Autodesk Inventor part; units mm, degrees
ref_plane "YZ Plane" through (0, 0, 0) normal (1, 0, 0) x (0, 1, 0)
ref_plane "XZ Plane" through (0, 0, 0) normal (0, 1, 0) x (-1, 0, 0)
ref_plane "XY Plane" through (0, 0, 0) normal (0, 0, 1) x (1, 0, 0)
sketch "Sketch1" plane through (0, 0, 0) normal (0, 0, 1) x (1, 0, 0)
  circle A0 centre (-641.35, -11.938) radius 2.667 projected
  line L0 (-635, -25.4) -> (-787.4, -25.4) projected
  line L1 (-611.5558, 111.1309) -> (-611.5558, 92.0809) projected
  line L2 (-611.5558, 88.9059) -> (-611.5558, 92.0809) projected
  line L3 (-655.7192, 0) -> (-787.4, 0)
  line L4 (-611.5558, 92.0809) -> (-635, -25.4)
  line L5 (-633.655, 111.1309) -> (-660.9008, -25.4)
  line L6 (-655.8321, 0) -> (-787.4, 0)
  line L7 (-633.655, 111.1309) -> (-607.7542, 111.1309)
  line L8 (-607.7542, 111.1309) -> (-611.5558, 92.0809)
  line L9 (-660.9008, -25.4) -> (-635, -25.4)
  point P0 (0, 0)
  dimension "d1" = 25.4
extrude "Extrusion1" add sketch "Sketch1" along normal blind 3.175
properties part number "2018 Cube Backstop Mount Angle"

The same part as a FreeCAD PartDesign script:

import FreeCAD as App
import Part
import Sketcher
Q = App.Units.Quantity

doc = App.newDocument("Part")
body = doc.addObject("PartDesign::Body", "Body")

# Sketch on XY plane
sketch1 = body.newObject("Sketcher::SketchObject", "Sketch")
sketch1.AttachmentSupport = (doc.getObject("XY_Plane"), [""])
sketch1.MapMode = "FlatFace"
sketch1.addGeometry(Part.LineSegment(App.Vector(-660.9, -25.4, 0), App.Vector(-635, -25.4, 0)), False)
sketch1.addGeometry(Part.LineSegment(App.Vector(-635, -25.4, 0), App.Vector(-611.6, 92.1, 0)), False)
sketch1.addGeometry(Part.LineSegment(App.Vector(-611.6, 92.1, 0), App.Vector(-607.8, 111.1, 0)), False)
sketch1.addGeometry(Part.LineSegment(App.Vector(-607.8, 111.1, 0), App.Vector(-633.7, 111.1, 0)), False)
sketch1.addGeometry(Part.LineSegment(App.Vector(-633.7, 111.1, 0), App.Vector(-660.9, -25.4, 0)), False)
sketch1.addGeometry(Part.Circle(App.Vector(-641.4, -11.9, 0), App.Vector(0, 0, 1), 2.7), False)
sketch1.addConstraint(Sketcher.Constraint("Coincident", 0, 2, 1, 1))
sketch1.addConstraint(Sketcher.Constraint("Coincident", 1, 2, 2, 1))
sketch1.addConstraint(Sketcher.Constraint("Coincident", 2, 2, 3, 1))
sketch1.addConstraint(Sketcher.Constraint("Coincident", 3, 2, 4, 1))
sketch1.addConstraint(Sketcher.Constraint("Coincident", 4, 2, 0, 1))
sketch1.addConstraint(Sketcher.Constraint("Horizontal", 0))
sketch1.addConstraint(Sketcher.Constraint("Horizontal", 3))
sketch1.addConstraint(Sketcher.Constraint("Parallel", 1, 2))
sketch1.addConstraint(Sketcher.Constraint("Parallel", 2, 4))
sketch1.addConstraint(Sketcher.Constraint("DistanceY", 0, 2, -1, 1, Q("1 in")))
sketch1.addConstraint(Sketcher.Constraint("Diameter", 5, Q("0.21 in")))
sketch1.addConstraint(Sketcher.Constraint("DistanceX", 0, 2, -1, 1, Q("25 in")))
sketch1.addConstraint(Sketcher.Constraint("DistanceX", 5, 3, -1, 1, Q("25.25 in")))
sketch1.addConstraint(Sketcher.Constraint("DistanceY", 5, 3, -1, 1, Q("0.47 in")))
sketch1.addConstraint(Sketcher.Constraint("DistanceY", 1, 2, 2, 2, Q("0.75 in")))
sketch1.addConstraint(Sketcher.Constraint("DistanceX", 1, 2, -1, 1, Q("24.077 in")))
sketch1.addConstraint(Sketcher.Constraint("DistanceX", 0, 1, 0, 2, 25.9008))
sketch1.addConstraint(Sketcher.Constraint("Distance", 1, 119.7973))
pad1 = body.newObject("PartDesign::Pad", "Pad")
pad1.Profile = sketch1
pad1.Length = Q("0.125 in")

doc.recompute()
